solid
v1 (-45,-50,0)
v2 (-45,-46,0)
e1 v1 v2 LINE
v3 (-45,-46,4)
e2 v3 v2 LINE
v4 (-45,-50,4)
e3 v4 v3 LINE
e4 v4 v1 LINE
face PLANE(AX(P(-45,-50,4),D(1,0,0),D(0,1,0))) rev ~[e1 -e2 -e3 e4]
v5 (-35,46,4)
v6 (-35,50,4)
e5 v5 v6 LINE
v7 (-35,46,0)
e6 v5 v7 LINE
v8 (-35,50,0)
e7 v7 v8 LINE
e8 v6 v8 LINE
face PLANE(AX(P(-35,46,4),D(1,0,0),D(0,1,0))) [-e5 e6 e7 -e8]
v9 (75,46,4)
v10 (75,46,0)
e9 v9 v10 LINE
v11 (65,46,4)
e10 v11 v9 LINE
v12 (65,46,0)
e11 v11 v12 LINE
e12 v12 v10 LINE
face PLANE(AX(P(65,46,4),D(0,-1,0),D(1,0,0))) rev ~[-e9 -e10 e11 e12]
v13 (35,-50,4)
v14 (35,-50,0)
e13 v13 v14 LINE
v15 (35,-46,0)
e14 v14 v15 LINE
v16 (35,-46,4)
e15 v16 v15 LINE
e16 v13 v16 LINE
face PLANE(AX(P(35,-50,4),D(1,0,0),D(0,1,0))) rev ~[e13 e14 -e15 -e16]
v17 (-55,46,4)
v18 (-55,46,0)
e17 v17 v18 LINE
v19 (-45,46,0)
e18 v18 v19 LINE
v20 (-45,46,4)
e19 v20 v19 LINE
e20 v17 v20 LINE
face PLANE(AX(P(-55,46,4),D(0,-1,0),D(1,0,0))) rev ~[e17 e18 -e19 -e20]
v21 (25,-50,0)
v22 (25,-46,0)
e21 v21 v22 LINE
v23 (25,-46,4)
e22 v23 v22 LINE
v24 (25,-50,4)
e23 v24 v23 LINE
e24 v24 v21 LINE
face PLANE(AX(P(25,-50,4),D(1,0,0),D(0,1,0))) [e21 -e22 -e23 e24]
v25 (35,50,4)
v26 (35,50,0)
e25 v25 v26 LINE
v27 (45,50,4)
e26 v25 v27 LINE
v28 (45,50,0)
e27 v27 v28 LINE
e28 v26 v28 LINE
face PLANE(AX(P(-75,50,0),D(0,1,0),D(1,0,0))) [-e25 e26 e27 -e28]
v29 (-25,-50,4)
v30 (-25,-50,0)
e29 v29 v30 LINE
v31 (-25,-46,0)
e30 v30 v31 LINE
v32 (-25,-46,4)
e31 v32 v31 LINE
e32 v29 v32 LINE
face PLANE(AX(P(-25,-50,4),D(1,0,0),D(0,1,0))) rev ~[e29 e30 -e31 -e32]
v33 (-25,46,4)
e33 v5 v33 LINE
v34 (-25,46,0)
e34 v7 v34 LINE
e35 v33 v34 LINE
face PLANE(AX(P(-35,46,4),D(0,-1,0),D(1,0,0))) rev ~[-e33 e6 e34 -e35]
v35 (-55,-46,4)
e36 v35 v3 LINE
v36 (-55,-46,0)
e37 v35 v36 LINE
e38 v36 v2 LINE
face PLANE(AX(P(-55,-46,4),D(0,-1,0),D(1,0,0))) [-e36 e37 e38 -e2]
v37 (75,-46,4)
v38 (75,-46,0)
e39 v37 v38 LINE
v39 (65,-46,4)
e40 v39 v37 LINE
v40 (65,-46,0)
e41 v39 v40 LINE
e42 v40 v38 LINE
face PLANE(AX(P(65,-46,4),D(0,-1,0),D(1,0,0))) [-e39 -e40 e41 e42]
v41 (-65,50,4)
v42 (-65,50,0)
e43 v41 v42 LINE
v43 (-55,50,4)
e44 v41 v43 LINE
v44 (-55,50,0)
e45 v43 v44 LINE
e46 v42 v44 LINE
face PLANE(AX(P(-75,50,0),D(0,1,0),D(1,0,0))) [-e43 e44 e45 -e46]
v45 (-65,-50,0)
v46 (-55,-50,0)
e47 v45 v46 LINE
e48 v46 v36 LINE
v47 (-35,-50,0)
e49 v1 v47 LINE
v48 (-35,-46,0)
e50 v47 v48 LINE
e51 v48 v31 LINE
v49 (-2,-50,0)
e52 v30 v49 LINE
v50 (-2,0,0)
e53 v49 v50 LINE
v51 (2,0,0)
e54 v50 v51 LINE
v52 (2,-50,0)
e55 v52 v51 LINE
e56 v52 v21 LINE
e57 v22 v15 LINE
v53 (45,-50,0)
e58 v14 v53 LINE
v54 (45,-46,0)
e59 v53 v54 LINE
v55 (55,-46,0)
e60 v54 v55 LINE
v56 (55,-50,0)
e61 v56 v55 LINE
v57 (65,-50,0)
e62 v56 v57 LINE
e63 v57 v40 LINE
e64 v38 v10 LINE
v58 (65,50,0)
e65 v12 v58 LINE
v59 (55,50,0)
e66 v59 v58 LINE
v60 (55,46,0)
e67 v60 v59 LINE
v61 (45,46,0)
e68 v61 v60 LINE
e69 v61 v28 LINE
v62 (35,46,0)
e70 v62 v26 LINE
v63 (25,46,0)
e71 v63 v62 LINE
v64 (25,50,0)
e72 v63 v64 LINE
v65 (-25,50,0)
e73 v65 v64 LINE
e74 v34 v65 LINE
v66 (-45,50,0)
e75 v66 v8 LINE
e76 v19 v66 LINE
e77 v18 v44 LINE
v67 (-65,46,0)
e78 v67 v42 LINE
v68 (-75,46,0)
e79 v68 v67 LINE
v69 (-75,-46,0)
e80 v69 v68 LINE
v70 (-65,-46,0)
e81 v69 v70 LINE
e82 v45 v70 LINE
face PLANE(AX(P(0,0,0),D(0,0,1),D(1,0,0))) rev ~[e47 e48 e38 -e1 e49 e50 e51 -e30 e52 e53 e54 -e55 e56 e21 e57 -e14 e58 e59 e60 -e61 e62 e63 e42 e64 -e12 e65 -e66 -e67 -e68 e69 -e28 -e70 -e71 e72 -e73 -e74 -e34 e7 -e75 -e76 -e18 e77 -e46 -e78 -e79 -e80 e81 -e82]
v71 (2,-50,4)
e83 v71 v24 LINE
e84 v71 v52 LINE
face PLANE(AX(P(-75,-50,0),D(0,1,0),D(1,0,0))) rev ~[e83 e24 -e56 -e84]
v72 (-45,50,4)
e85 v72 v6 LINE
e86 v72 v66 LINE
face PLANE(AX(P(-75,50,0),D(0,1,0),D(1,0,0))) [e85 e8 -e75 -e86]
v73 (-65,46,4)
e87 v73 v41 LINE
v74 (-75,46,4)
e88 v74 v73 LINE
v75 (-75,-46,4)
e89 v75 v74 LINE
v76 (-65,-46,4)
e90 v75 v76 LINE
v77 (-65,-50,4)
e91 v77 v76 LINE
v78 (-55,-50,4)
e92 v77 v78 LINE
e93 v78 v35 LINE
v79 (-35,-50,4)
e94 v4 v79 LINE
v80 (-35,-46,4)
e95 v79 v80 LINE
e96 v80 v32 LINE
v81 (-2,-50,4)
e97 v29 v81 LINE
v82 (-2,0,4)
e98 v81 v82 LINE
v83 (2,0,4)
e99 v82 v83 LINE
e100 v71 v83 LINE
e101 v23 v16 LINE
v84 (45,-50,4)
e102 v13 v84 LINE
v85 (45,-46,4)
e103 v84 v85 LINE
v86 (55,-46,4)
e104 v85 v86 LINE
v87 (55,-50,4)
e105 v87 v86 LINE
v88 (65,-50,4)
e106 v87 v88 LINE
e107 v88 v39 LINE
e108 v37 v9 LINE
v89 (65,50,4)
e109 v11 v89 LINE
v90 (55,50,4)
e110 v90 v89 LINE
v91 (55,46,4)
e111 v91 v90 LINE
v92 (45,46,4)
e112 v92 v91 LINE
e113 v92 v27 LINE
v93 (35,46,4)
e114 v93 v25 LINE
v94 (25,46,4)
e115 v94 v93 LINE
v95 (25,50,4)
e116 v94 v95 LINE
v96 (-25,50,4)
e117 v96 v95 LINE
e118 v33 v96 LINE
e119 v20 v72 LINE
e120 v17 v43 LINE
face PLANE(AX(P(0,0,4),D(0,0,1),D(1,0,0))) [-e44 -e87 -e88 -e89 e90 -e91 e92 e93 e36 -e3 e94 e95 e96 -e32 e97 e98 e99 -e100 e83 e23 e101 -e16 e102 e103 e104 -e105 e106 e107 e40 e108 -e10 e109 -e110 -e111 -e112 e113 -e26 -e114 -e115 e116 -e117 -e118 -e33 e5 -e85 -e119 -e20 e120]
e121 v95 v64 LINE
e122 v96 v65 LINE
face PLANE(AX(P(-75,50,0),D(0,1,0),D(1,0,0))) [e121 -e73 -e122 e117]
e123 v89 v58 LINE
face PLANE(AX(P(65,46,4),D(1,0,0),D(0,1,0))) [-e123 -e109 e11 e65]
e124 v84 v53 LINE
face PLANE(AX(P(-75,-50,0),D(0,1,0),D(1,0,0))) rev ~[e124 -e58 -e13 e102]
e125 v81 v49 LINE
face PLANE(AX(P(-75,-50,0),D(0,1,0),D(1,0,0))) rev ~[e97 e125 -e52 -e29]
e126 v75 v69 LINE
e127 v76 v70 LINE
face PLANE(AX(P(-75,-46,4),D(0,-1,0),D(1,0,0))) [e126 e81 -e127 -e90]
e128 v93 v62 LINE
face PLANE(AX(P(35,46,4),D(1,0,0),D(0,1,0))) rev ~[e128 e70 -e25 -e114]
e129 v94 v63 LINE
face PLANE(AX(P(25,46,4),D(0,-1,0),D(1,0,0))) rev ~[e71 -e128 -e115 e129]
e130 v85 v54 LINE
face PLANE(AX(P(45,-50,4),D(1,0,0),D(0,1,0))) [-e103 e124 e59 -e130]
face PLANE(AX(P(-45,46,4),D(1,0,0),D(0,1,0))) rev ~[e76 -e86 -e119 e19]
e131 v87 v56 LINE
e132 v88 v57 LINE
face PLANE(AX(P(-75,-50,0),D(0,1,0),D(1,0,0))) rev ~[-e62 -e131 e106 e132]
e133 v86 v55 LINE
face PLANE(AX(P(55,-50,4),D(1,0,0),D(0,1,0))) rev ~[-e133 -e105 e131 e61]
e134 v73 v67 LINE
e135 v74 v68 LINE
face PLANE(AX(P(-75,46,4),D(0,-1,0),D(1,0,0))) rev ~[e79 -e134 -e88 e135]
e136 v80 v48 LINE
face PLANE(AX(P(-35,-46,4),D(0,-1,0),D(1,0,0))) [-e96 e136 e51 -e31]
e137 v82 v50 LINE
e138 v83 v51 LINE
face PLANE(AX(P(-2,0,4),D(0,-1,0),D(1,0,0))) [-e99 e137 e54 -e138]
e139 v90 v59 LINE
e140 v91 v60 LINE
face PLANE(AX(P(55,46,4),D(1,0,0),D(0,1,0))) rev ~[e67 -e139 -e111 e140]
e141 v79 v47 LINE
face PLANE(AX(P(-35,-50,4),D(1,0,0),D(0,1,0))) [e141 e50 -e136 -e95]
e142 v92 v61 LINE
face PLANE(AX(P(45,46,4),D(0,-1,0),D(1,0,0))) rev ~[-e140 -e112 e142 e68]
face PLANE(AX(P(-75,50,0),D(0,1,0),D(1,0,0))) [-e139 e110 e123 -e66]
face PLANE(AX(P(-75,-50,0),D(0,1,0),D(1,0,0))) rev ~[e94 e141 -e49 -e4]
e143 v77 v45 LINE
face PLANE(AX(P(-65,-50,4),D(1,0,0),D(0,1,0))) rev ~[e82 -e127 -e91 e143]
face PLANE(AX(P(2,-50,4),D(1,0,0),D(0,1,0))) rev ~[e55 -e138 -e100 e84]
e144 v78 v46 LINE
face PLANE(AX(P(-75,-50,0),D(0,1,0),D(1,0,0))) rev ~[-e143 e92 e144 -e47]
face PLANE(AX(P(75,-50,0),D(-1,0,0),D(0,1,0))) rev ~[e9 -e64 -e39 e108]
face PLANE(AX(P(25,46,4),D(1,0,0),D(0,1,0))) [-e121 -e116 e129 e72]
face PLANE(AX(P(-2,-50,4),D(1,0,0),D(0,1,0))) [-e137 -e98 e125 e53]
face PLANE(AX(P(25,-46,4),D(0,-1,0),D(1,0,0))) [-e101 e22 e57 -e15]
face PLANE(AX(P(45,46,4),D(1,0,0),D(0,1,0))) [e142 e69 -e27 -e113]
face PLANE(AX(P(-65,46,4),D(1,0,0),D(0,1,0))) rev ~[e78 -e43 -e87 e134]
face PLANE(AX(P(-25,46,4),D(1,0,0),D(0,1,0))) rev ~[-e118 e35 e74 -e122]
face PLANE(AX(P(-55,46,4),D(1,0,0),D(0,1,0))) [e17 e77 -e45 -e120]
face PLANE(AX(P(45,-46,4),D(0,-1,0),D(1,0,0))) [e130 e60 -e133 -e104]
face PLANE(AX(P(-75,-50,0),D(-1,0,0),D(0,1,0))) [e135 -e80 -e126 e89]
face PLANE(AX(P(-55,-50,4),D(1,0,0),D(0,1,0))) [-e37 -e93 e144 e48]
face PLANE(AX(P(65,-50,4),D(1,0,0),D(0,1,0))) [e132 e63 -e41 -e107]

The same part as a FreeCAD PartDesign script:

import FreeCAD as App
import Part
import Sketcher

V = App.Vector

doc = App.newDocument("Part")
params = doc.addObject("Spreadsheet::Sheet", "Params")
for row, (alias, value) in enumerate([
    ("sketch1_width", "150 mm"),
    ("sketch1_height", "100 mm"),
    ("pad1_length", "4 mm"),
    ("sketch2_width", "10 mm"),
    ("sketch2_width2", "4 mm"),
    ("sketch2_height", "50 mm"),
], start=1):
    params.set(f"A{row}", alias)
    params.set(f"B{row}", "=" + value)
    params.setAlias(f"B{row}", alias)

body = doc.addObject("PartDesign::Body", "Body")

sketch1 = body.newObject("Sketcher::SketchObject", "Sketch")
sketch1.AttachmentSupport = (doc.getObject("XY_Plane"), [""])
sketch1.MapMode = "FlatFace"
sketch1.addGeometry([
    Part.LineSegment(V(-75, 50, 0), V(-75, -50, 0)),
    Part.LineSegment(V(-75, -50, 0), V(75, -50, 0)),
    Part.LineSegment(V(75, -50, 0), V(75, 50, 0)),
    Part.LineSegment(V(75, 50, 0), V(-75, 50, 0)),
], False)
sketch1.addConstraint([
    Sketcher.Constraint("Coincident", 0, 2, 1, 1),
    Sketcher.Constraint("Coincident", 1, 2, 2, 1),
    Sketcher.Constraint("Coincident", 2, 2, 3, 1),
    Sketcher.Constraint("Coincident", 3, 2, 0, 1),
    Sketcher.Constraint("Vertical", 0),
    Sketcher.Constraint("Horizontal", 1),
    Sketcher.Constraint("Vertical", 2),
    Sketcher.Constraint("Horizontal", 3),
    Sketcher.Constraint("Symmetric", 0, 2, 2, 2, -1, 1),
    Sketcher.Constraint("DistanceX", 1, 1, 1, 2, 150.0),
    Sketcher.Constraint("DistanceY", 0, 2, 0, 1, 100.0),
])
sketch1.setExpression("Constraints[9]", "Params.sketch1_width")
sketch1.setExpression("Constraints[10]", "Params.sketch1_height")
pad1 = body.newObject("PartDesign::Pad", "Pad")
pad1.Profile = sketch1
pad1.setExpression("Length", "Params.pad1_length")

sketch2 = body.newObject("Sketcher::SketchObject", "Sketch001")
sketch2.AttachmentSupport = (doc.getObject("XY_Plane"), [""])
sketch2.MapMode = "FlatFace"
sketch2.AttachmentOffset = App.Placement(V(0, 0, 4), App.Rotation())
sketch2.addGeometry([
    Part.LineSegment(V(-55, 50, 0), V(-55, 46, 0)),
    Part.LineSegment(V(-55, 46, 0), V(-45, 46, 0)),
    Part.LineSegment(V(-45, 46, 0), V(-45, 50, 0)),
    Part.LineSegment(V(-45, 50, 0), V(-55, 50, 0)),
    Part.LineSegment(V(-35, 50, 0), V(-35, 46, 0)),
    Part.LineSegment(V(-35, 46, 0), V(-25, 46, 0)),
    Part.LineSegment(V(-25, 46, 0), V(-25, 50, 0)),
    Part.LineSegment(V(-25, 50, 0), V(-35, 50, 0)),
    Part.LineSegment(V(-75, 50, 0), V(-75, 46, 0)),
    Part.LineSegment(V(-75, 46, 0), V(-65, 46, 0)),
    Part.LineSegment(V(-65, 46, 0), V(-65, 50, 0)),
    Part.LineSegment(V(-65, 50, 0), V(-75, 50, 0)),
    Part.LineSegment(V(65, 50, 0), V(65, 46, 0)),
    Part.LineSegment(V(65, 46, 0), V(75, 46, 0)),
    Part.LineSegment(V(75, 46, 0), V(75, 50, 0)),
    Part.LineSegment(V(75, 50, 0), V(65, 50, 0)),
    Part.LineSegment(V(45, 50, 0), V(45, 46, 0)),
    Part.LineSegment(V(45, 46, 0), V(55, 46, 0)),
    Part.LineSegment(V(55, 46, 0), V(55, 50, 0)),
    Part.LineSegment(V(55, 50, 0), V(45, 50, 0)),
    Part.LineSegment(V(25, 50, 0), V(25, 46, 0)),
    Part.LineSegment(V(25, 46, 0), V(35, 46, 0)),
    Part.LineSegment(V(35, 46, 0), V(35, 50, 0)),
    Part.LineSegment(V(35, 50, 0), V(25, 50, 0)),
    Part.LineSegment(V(45, -46, 0), V(45, -50, 0)),
    Part.LineSegment(V(45, -50, 0), V(55, -50, 0)),
    Part.LineSegment(V(55, -50, 0), V(55, -46, 0)),
    Part.LineSegment(V(55, -46, 0), V(45, -46, 0)),
    Part.LineSegment(V(25, -46, 0), V(25, -50, 0)),
    Part.LineSegment(V(25, -50, 0), V(35, -50, 0)),
    Part.LineSegment(V(35, -50, 0), V(35, -46, 0)),
    Part.LineSegment(V(35, -46, 0), V(25, -46, 0)),
    Part.LineSegment(V(65, -46, 0), V(65, -50, 0)),
    Part.LineSegment(V(65, -50, 0), V(75, -50, 0)),
    Part.LineSegment(V(75, -50, 0), V(75, -46, 0)),
    Part.LineSegment(V(75, -46, 0), V(65, -46, 0)),
    Part.LineSegment(V(-75, -46, 0), V(-75, -50, 0)),
    Part.LineSegment(V(-75, -50, 0), V(-65, -50, 0)),
    Part.LineSegment(V(-65, -50, 0), V(-65, -46, 0)),
    Part.LineSegment(V(-65, -46, 0), V(-75, -46, 0)),
    Part.LineSegment(V(-55, -46, 0), V(-55, -50, 0)),
    Part.LineSegment(V(-55, -50, 0), V(-45, -50, 0)),
    Part.LineSegment(V(-45, -50, 0), V(-45, -46, 0)),
    Part.LineSegment(V(-45, -46, 0), V(-55, -46, 0)),
    Part.LineSegment(V(-35, -46, 0), V(-35, -50, 0)),
    Part.LineSegment(V(-35, -50, 0), V(-25, -50, 0)),
    Part.LineSegment(V(-25, -50, 0), V(-25, -46, 0)),
    Part.LineSegment(V(-25, -46, 0), V(-35, -46, 0)),
    Part.LineSegment(V(-2, 0, 0), V(-2, -50, 0)),
    Part.LineSegment(V(-2, -50, 0), V(2, -50, 0)),
    Part.LineSegment(V(2, -50, 0), V(2, 0, 0)),
    Part.LineSegment(V(2, 0, 0), V(-2, 0, 0)),
], False)
sketch2.addConstraint([
    Sketcher.Constraint("Coincident", 0, 2, 1, 1),
    Sketcher.Constraint("Coincident", 1, 2, 2, 1),
    Sketcher.Constraint("Coincident", 2, 2, 3, 1),
    Sketcher.Constraint("Coincident", 3, 2, 0, 1),
    Sketcher.Constraint("Coincident", 4, 2, 5, 1),
    Sketcher.Constraint("Coincident", 5, 2, 6, 1),
    Sketcher.Constraint("Coincident", 6, 2, 7, 1),
    Sketcher.Constraint("Coincident", 7, 2, 4, 1),
    Sketcher.Constraint("Coincident", 8, 2, 9, 1),
    Sketcher.Constraint("Coincident", 9, 2, 10, 1),
    Sketcher.Constraint("Coincident", 10, 2, 11, 1),
    Sketcher.Constraint("Coincident", 11, 2, 8, 1),
    Sketcher.Constraint("Coincident", 12, 2, 13, 1),
    Sketcher.Constraint("Coincident", 13, 2, 14, 1),
    Sketcher.Constraint("Coincident", 14, 2, 15, 1),
    Sketcher.Constraint("Coincident", 15, 2, 12, 1),
    Sketcher.Constraint("Coincident", 16, 2, 17, 1),
    Sketcher.Constraint("Coincident", 17, 2, 18, 1),
    Sketcher.Constraint("Coincident", 18, 2, 19, 1),
    Sketcher.Constraint("Coincident", 19, 2, 16, 1),
    Sketcher.Constraint("Coincident", 20, 2, 21, 1),
    Sketcher.Constraint("Coincident", 21, 2, 22, 1),
    Sketcher.Constraint("Coincident", 22, 2, 23, 1),
    Sketcher.Constraint("Coincident", 23, 2, 20, 1),
    Sketcher.Constraint("Coincident", 24, 2, 25, 1),
    Sketcher.Constraint("Coincident", 25, 2, 26, 1),
    Sketcher.Constraint("Coincident", 26, 2, 27, 1),
    Sketcher.Constraint("Coincident", 27, 2, 24, 1),
    Sketcher.Constraint("Coincident", 28, 2, 29, 1),
    Sketcher.Constraint("Coincident", 29, 2, 30, 1),
    Sketcher.Constraint("Coincident", 30, 2, 31, 1),
    Sketcher.Constraint("Coincident", 31, 2, 28, 1),
    Sketcher.Constraint("Coincident", 32, 2, 33, 1),
    Sketcher.Constraint("Coincident", 33, 2, 34, 1),
    Sketcher.Constraint("Coincident", 34, 2, 35, 1),
    Sketcher.Constraint("Coincident", 35, 2, 32, 1),
    Sketcher.Constraint("Coincident", 36, 2, 37, 1),
    Sketcher.Constraint("Coincident", 37, 2, 38, 1),
    Sketcher.Constraint("Coincident", 38, 2, 39, 1),
    Sketcher.Constraint("Coincident", 39, 2, 36, 1),
    Sketcher.Constraint("Coincident", 40, 2, 41, 1),
    Sketcher.Constraint("Coincident", 41, 2, 42, 1),
    Sketcher.Constraint("Coincident", 42, 2, 43, 1),
    Sketcher.Constraint("Coincident", 43, 2, 40, 1),
    Sketcher.Constraint("Coincident", 44, 2, 45, 1),
    Sketcher.Constraint("Coincident", 45, 2, 46, 1),
    Sketcher.Constraint("Coincident", 46, 2, 47, 1),
    Sketcher.Constraint("Coincident", 47, 2, 44, 1),
    Sketcher.Constraint("Coincident", 48, 2, 49, 1),
    Sketcher.Constraint("Coincident", 49, 2, 50, 1),
    Sketcher.Constraint("Coincident", 50, 2, 51, 1),
    Sketcher.Constraint("Coincident", 51, 2, 48, 1),
    Sketcher.Constraint("Vertical", 0),
    Sketcher.Constraint("Horizontal", 1),
    Sketcher.Constraint("Vertical", 2),
    Sketcher.Constraint("Horizontal", 3),
    Sketcher.Constraint("Vertical", 4),
    Sketcher.Constraint("Horizontal", 5),
    Sketcher.Constraint("Vertical", 6),
    Sketcher.Constraint("Horizontal", 7),
    Sketcher.Constraint("Vertical", 8),
    Sketcher.Constraint("Horizontal", 9),
    Sketcher.Constraint("Vertical", 10),
    Sketcher.Constraint("Horizontal", 11),
    Sketcher.Constraint("Vertical", 12),
    Sketcher.Constraint("Horizontal", 13),
    Sketcher.Constraint("Vertical", 14),
    Sketcher.Constraint("Horizontal", 15),
    Sketcher.Constraint("Vertical", 16),
    Sketcher.Constraint("Horizontal", 17),
    Sketcher.Constraint("Vertical", 18),
    Sketcher.Constraint("Horizontal", 19),
    Sketcher.Constraint("Vertical", 20),
    Sketcher.Constraint("Horizontal", 21),
    Sketcher.Constraint("Vertical", 22),
    Sketcher.Constraint("Horizontal", 23),
    Sketcher.Constraint("Vertical", 24),
    Sketcher.Constraint("Horizontal", 25),
    Sketcher.Constraint("Vertical", 26),
    Sketcher.Constraint("Horizontal", 27),
    Sketcher.Constraint("Vertical", 28),
    Sketcher.Constraint("Horizontal", 29),
    Sketcher.Constraint("Vertical", 30),
    Sketcher.Constraint("Horizontal", 31),
    Sketcher.Constraint("Vertical", 32),
    Sketcher.Constraint("Horizontal", 33),
    Sketcher.Constraint("Vertical", 34),
    Sketcher.Constraint("Horizontal", 35),
    Sketcher.Constraint("Vertical", 36),
    Sketcher.Constraint("Horizontal", 37),
    Sketcher.Constraint("Vertical", 38),
    Sketcher.Constraint("Horizontal", 39),
    Sketcher.Constraint("Vertical", 40),
    Sketcher.Constraint("Horizontal", 41),
    Sketcher.Constraint("Vertical", 42),
    Sketcher.Constraint("Horizontal", 43),
    Sketcher.Constraint("Vertical", 44),
    Sketcher.Constraint("Horizontal", 45),
    Sketcher.Constraint("Vertical", 46),
    Sketcher.Constraint("Horizontal", 47),
    Sketcher.Constraint("Vertical", 48),
    Sketcher.Constraint("Horizontal", 49),
    Sketcher.Constraint("Vertical", 50),
    Sketcher.Constraint("Horizontal", 51),
    Sketcher.Constraint("Symmetric", 2, 2, 24, 2, -1, 1),
    Sketcher.Constraint("Symmetric", 0, 2, 26, 2, -1, 1),
    Sketcher.Constraint("Symmetric", 6, 2, 28, 2, -1, 1),
    Sketcher.Constraint("Symmetric", 4, 2, 30, 2, -1, 1),
    Sketcher.Constraint("Symmetric", 10, 2, 32, 2, -1, 1),
    Sketcher.Constraint("Symmetric", 8, 2, 34, 2, -1, 1),
    Sketcher.Constraint("Symmetric", 14, 2, 36, 2, -1, 1),
    Sketcher.Constraint("Symmetric", 12, 2, 38, 2, -1, 1),
    Sketcher.Constraint("Symmetric", 18, 2, 40, 2, -1, 1),
    Sketcher.Constraint("Symmetric", 16, 2, 42, 2, -1, 1),
    Sketcher.Constraint("Symmetric", 22, 2, 44, 2, -1, 1),
    Sketcher.Constraint("Symmetric", 20, 2, 46, 2, -1, 1),
    Sketcher.Constraint("Symmetric", 50, 2, 51, 2, -1, 1),
    Sketcher.Constraint("Symmetric", 9, 2, 12, 2, -2),
    Sketcher.Constraint("Symmetric", 11, 2, 14, 2, -2),
    Sketcher.Constraint("Symmetric", 1, 2, 16, 2, -2),
    Sketcher.Constraint("Symmetric", 3, 2, 18, 2, -2),
    Sketcher.Constraint("Symmetric", 5, 2, 20, 2, -2),
    Sketcher.Constraint("Symmetric", 7, 2, 22, 2, -2),
    Sketcher.Constraint("Horizontal", 1, 2, 4, 2),
    Sketcher.Constraint("Horizontal", 3, 2, 6, 2),
    Sketcher.Constraint("Horizontal", 5, 2, 8, 2),
    Sketcher.Constraint("Horizontal", 7, 2, 10, 2),
    Sketcher.Constraint("Horizontal", 45, 2, 48, 2),
    Sketcher.Constraint("Equal", 3, 5),
    Sketcher.Constraint("Equal", 7, 9),
    Sketcher.Constraint("Equal", 51, 0),
    Sketcher.Constraint("DistanceX", 1, 1, 1, 2, 10.0),
    Sketcher.Constraint("DistanceX", 49, 1, 49, 2, 4.0),
    Sketcher.Constraint("DistanceY", 48, 2, 48, 1, 50.0),
    Sketcher.Constraint("DistanceX", 0, 2, -1, 1, 55.0),
    Sketcher.Constraint("DistanceX", 4, 2, -1, 1, 35.0),
    Sketcher.Constraint("DistanceX", 8, 2, -1, 1, 75.0),
])
sketch2.setExpression("Constraints[131]", "Params.sketch2_width")
sketch2.setExpression("Constraints[132]", "Params.sketch2_width2")
sketch2.setExpression("Constraints[133]", "Params.sketch2_height")
pocket1 = body.newObject("PartDesign::Pocket", "Pocket")
pocket1.Profile = sketch2
pocket1.Type = "ThroughAll"

doc.recompute()
